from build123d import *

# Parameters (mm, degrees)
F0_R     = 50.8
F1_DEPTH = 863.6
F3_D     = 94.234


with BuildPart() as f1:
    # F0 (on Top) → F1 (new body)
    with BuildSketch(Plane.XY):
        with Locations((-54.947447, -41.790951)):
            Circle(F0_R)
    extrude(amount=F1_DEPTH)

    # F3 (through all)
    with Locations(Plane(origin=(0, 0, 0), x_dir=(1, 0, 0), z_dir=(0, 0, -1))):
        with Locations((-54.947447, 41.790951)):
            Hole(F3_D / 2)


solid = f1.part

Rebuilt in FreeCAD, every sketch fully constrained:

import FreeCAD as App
import Part
import Sketcher
Q = App.Units.Quantity

doc = App.newDocument("Part")
body = doc.addObject("PartDesign::Body", "Body")

sketch1 = body.newObject("Sketcher::SketchObject", "Sketch")
sketch1.AttachmentSupport = (doc.getObject("XY_Plane"), [""])
sketch1.MapMode = "FlatFace"
sketch1.addGeometry(Part.Circle(App.Vector(-55, -42, 0), App.Vector(0, 0, 1), 51), False)
sketch1.addConstraint([
    Sketcher.Constraint("Diameter", 0, Q("4 in")),
    Sketcher.Constraint("DistanceY", 0, 3, -1, 1, 41.790951),
    Sketcher.Constraint("DistanceX", 0, 3, -1, 1, 54.947447),
])
pad1 = body.newObject("PartDesign::Pad", "Pad")
pad1.Profile = sketch1
pad1.Length = Q("34 in")

sketch2 = body.newObject("Sketcher::SketchObject", "Sketch001")
sketch2.AttachmentSupport = (doc.getObject("XY_Plane"), [""])
sketch2.MapMode = "FlatFace"
sketch2.addGeometry(Part.Circle(App.Vector(-55, -42, 0), App.Vector(0, 0, 1), 47), False)
sketch2.addConstraint([
    Sketcher.Constraint("Diameter", 0, Q("3.71 in")),
    Sketcher.Constraint("DistanceY", 0, 3, -1, 1, 41.790951),
    Sketcher.Constraint("DistanceX", 0, 3, -1, 1, 54.947447),
])
doc.recompute()
hole = body.newObject("PartDesign::Hole", "Hole")
hole.Profile = sketch2
hole.ThreadType = "None"
hole.Diameter = Q("3.71 in")
hole.DepthType = "ThroughAll"
hole.Reversed = True

doc.recompute()
